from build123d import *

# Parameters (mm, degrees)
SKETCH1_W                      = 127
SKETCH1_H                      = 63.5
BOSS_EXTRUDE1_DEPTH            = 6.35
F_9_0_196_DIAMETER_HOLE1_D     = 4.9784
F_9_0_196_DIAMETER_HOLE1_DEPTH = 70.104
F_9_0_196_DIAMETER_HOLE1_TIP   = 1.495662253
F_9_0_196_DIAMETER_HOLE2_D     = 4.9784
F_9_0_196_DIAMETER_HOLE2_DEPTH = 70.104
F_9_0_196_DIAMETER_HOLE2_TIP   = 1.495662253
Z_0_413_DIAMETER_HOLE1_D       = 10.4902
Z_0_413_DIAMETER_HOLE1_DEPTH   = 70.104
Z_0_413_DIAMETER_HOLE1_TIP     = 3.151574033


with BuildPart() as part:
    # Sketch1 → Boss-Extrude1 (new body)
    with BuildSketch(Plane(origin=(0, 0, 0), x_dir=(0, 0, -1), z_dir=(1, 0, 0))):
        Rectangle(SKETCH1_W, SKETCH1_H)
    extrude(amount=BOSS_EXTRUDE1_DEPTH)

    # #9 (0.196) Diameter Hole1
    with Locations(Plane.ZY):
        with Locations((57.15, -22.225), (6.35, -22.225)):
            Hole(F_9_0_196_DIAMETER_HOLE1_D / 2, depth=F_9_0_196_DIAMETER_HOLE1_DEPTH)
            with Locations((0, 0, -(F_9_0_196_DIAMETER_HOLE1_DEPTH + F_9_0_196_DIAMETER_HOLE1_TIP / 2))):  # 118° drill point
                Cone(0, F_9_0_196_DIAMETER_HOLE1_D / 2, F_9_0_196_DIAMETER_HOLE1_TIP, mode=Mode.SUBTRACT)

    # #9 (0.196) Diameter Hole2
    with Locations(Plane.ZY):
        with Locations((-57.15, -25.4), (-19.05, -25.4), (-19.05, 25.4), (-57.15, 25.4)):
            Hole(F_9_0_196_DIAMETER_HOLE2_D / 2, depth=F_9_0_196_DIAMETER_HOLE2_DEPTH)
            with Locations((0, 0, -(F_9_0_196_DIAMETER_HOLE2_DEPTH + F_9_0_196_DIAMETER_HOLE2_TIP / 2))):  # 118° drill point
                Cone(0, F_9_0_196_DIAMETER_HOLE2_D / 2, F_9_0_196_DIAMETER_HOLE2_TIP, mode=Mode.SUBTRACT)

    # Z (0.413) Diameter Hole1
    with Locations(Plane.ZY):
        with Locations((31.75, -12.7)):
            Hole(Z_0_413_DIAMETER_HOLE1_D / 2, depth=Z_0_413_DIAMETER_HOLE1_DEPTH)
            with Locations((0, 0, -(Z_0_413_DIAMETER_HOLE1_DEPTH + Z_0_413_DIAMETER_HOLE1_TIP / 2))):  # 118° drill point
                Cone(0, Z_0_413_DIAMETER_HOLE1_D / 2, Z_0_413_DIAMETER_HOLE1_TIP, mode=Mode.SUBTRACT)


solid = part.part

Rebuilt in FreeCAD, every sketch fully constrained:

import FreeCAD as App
import Part
import Sketcher
from FreeCAD import Vector
Q = App.Units.Quantity


def add_polygon(sketch, points):
    """Adds a closed chain of lines whose ends are joined by coincident constraints."""
    first, n = sketch.GeometryCount, len(points)
    for a, b in zip(points, points[1:] + points[:1]):
        sketch.addGeometry(Part.LineSegment(App.Vector(*a, 0), App.Vector(*b, 0)), False)
    for i in range(n):
        sketch.addConstraint(Sketcher.Constraint("Coincident", first + i, 2, first + (i + 1) % n, 1))

doc = App.newDocument("Part")
body = doc.addObject("PartDesign::Body", "Body")

sketch1 = body.newObject("Sketcher::SketchObject", "Sketch")
sketch1.AttachmentSupport = (doc.getObject("YZ_Plane"), [""])
sketch1.MapMode = "FlatFace"
add_polygon(sketch1, [(32, 64), (-32, 64), (-32, -64), (32, -64)])
sketch1.addConstraint([
    Sketcher.Constraint("Horizontal", 0),
    Sketcher.Constraint("Vertical", 1),
    Sketcher.Constraint("Horizontal", 2),
    Sketcher.Constraint("Vertical", 3),
    Sketcher.Constraint("Symmetric", 0, 2, 2, 2, -1, 1),
    Sketcher.Constraint("DistanceY", 1, 2, 1, 1, Q("5 in")),
    Sketcher.Constraint("DistanceX", 0, 2, 0, 1, Q("2.5 in")),
])
pad1 = body.newObject("PartDesign::Pad", "Pad")
pad1.Profile = sketch1
pad1.Length = Q("0.25 in")

sketch2 = body.newObject("Sketcher::SketchObject", "Sketch001")
sketch2.AttachmentSupport = (doc.getObject("YZ_Plane"), [""])
sketch2.MapMode = "FlatFace"
sketch2.addGeometry([
    Part.Circle(Vector(-22.2, 57.1, 0), Vector(0, 0, 1), 2.5),
    Part.Circle(Vector(-22.2, 6.3, 0), Vector(0, 0, 1), 2.5),
], False)
sketch2.addConstraint([
    Sketcher.Constraint("Equal", 0, 1),
    Sketcher.Constraint("Vertical", 0, 3, 1, 3),
    Sketcher.Constraint("Diameter", 0, Q("0.196 in")),
    Sketcher.Constraint("DistanceY", 1, 3, 0, 3, Q("2 in")),
    Sketcher.Constraint("DistanceY", -1, 1, 0, 3, Q("2.25 in")),
    Sketcher.Constraint("DistanceX", 0, 3, -1, 1, Q("0.875 in")),
])
doc.recompute()
hole = body.newObject("PartDesign::Hole", "Hole")
hole.Profile = sketch2
hole.ThreadType = "None"
hole.Diameter = Q("0.196 in")
hole.DepthType = "Dimension"
hole.Depth = Q("2.76 in")
hole.DrillPoint = "Angled"
hole.DrillPointAngle = 118
hole.Reversed = True

sketch3 = body.newObject("Sketcher::SketchObject", "Sketch002")
sketch3.AttachmentSupport = (doc.getObject("YZ_Plane"), [""])
sketch3.MapMode = "FlatFace"
sketch3.addGeometry([
    Part.Circle(Vector(-25.4, -57.1, 0), Vector(0, 0, 1), 2.5),
    Part.Circle(Vector(-25.4, -19.1, 0), Vector(0, 0, 1), 2.5),
    Part.Circle(Vector(25.4, -19.1, 0), Vector(0, 0, 1), 2.5),
    Part.Circle(Vector(25.4, -57.1, 0), Vector(0, 0, 1), 2.5),
], False)
sketch3.addConstraint([
    Sketcher.Constraint("Equal", 0, 1),
    Sketcher.Constraint("Equal", 1, 2),
    Sketcher.Constraint("Equal", 2, 3),
    Sketcher.Constraint("Symmetric", 1, 3, 2, 3, -2),
    Sketcher.Constraint("Symmetric", 0, 3, 3, 3, -2),
    Sketcher.Constraint("Vertical", 0, 3, 1, 3),
    Sketcher.Constraint("Diameter", 0, Q("0.196 in")),
    Sketcher.Constraint("DistanceX", 0, 3, -1, 1, Q("1 in")),
    Sketcher.Constraint("DistanceY", 0, 3, 1, 3, Q("1.5 in")),
    Sketcher.Constraint("DistanceY", 0, 3, -1, 1, Q("2.25 in")),
])
doc.recompute()
hole2 = body.newObject("PartDesign::Hole", "Hole001")
hole2.Profile = sketch3
hole2.ThreadType = "None"
hole2.Diameter = Q("0.196 in")
hole2.DepthType = "Dimension"
hole2.Depth = Q("2.76 in")
hole2.DrillPoint = "Angled"
hole2.DrillPointAngle = 118
hole2.Reversed = True

sketch4 = body.newObject("Sketcher::SketchObject", "Sketch003")
sketch4.AttachmentSupport = (doc.getObject("YZ_Plane"), [""])
sketch4.MapMode = "FlatFace"
sketch4.addGeometry(Part.Circle(Vector(-13, 32, 0), Vector(0, 0, 1), 5), False)
sketch4.addConstraint([
    Sketcher.Constraint("Diameter", 0, Q("0.413 in")),
    Sketcher.Constraint("DistanceX", 0, 3, -1, 1, Q("0.5 in")),
    Sketcher.Constraint("DistanceY", -1, 1, 0, 3, Q("1.25 in")),
])
doc.recompute()
hole3 = body.newObject("PartDesign::Hole", "Hole002")
hole3.Profile = sketch4
hole3.ThreadType = "None"
hole3.Diameter = Q("0.413 in")
hole3.DepthType = "Dimension"
hole3.Depth = Q("2.76 in")
hole3.DrillPoint = "Angled"
hole3.DrillPointAngle = 118
hole3.Reversed = True

doc.recompute()
